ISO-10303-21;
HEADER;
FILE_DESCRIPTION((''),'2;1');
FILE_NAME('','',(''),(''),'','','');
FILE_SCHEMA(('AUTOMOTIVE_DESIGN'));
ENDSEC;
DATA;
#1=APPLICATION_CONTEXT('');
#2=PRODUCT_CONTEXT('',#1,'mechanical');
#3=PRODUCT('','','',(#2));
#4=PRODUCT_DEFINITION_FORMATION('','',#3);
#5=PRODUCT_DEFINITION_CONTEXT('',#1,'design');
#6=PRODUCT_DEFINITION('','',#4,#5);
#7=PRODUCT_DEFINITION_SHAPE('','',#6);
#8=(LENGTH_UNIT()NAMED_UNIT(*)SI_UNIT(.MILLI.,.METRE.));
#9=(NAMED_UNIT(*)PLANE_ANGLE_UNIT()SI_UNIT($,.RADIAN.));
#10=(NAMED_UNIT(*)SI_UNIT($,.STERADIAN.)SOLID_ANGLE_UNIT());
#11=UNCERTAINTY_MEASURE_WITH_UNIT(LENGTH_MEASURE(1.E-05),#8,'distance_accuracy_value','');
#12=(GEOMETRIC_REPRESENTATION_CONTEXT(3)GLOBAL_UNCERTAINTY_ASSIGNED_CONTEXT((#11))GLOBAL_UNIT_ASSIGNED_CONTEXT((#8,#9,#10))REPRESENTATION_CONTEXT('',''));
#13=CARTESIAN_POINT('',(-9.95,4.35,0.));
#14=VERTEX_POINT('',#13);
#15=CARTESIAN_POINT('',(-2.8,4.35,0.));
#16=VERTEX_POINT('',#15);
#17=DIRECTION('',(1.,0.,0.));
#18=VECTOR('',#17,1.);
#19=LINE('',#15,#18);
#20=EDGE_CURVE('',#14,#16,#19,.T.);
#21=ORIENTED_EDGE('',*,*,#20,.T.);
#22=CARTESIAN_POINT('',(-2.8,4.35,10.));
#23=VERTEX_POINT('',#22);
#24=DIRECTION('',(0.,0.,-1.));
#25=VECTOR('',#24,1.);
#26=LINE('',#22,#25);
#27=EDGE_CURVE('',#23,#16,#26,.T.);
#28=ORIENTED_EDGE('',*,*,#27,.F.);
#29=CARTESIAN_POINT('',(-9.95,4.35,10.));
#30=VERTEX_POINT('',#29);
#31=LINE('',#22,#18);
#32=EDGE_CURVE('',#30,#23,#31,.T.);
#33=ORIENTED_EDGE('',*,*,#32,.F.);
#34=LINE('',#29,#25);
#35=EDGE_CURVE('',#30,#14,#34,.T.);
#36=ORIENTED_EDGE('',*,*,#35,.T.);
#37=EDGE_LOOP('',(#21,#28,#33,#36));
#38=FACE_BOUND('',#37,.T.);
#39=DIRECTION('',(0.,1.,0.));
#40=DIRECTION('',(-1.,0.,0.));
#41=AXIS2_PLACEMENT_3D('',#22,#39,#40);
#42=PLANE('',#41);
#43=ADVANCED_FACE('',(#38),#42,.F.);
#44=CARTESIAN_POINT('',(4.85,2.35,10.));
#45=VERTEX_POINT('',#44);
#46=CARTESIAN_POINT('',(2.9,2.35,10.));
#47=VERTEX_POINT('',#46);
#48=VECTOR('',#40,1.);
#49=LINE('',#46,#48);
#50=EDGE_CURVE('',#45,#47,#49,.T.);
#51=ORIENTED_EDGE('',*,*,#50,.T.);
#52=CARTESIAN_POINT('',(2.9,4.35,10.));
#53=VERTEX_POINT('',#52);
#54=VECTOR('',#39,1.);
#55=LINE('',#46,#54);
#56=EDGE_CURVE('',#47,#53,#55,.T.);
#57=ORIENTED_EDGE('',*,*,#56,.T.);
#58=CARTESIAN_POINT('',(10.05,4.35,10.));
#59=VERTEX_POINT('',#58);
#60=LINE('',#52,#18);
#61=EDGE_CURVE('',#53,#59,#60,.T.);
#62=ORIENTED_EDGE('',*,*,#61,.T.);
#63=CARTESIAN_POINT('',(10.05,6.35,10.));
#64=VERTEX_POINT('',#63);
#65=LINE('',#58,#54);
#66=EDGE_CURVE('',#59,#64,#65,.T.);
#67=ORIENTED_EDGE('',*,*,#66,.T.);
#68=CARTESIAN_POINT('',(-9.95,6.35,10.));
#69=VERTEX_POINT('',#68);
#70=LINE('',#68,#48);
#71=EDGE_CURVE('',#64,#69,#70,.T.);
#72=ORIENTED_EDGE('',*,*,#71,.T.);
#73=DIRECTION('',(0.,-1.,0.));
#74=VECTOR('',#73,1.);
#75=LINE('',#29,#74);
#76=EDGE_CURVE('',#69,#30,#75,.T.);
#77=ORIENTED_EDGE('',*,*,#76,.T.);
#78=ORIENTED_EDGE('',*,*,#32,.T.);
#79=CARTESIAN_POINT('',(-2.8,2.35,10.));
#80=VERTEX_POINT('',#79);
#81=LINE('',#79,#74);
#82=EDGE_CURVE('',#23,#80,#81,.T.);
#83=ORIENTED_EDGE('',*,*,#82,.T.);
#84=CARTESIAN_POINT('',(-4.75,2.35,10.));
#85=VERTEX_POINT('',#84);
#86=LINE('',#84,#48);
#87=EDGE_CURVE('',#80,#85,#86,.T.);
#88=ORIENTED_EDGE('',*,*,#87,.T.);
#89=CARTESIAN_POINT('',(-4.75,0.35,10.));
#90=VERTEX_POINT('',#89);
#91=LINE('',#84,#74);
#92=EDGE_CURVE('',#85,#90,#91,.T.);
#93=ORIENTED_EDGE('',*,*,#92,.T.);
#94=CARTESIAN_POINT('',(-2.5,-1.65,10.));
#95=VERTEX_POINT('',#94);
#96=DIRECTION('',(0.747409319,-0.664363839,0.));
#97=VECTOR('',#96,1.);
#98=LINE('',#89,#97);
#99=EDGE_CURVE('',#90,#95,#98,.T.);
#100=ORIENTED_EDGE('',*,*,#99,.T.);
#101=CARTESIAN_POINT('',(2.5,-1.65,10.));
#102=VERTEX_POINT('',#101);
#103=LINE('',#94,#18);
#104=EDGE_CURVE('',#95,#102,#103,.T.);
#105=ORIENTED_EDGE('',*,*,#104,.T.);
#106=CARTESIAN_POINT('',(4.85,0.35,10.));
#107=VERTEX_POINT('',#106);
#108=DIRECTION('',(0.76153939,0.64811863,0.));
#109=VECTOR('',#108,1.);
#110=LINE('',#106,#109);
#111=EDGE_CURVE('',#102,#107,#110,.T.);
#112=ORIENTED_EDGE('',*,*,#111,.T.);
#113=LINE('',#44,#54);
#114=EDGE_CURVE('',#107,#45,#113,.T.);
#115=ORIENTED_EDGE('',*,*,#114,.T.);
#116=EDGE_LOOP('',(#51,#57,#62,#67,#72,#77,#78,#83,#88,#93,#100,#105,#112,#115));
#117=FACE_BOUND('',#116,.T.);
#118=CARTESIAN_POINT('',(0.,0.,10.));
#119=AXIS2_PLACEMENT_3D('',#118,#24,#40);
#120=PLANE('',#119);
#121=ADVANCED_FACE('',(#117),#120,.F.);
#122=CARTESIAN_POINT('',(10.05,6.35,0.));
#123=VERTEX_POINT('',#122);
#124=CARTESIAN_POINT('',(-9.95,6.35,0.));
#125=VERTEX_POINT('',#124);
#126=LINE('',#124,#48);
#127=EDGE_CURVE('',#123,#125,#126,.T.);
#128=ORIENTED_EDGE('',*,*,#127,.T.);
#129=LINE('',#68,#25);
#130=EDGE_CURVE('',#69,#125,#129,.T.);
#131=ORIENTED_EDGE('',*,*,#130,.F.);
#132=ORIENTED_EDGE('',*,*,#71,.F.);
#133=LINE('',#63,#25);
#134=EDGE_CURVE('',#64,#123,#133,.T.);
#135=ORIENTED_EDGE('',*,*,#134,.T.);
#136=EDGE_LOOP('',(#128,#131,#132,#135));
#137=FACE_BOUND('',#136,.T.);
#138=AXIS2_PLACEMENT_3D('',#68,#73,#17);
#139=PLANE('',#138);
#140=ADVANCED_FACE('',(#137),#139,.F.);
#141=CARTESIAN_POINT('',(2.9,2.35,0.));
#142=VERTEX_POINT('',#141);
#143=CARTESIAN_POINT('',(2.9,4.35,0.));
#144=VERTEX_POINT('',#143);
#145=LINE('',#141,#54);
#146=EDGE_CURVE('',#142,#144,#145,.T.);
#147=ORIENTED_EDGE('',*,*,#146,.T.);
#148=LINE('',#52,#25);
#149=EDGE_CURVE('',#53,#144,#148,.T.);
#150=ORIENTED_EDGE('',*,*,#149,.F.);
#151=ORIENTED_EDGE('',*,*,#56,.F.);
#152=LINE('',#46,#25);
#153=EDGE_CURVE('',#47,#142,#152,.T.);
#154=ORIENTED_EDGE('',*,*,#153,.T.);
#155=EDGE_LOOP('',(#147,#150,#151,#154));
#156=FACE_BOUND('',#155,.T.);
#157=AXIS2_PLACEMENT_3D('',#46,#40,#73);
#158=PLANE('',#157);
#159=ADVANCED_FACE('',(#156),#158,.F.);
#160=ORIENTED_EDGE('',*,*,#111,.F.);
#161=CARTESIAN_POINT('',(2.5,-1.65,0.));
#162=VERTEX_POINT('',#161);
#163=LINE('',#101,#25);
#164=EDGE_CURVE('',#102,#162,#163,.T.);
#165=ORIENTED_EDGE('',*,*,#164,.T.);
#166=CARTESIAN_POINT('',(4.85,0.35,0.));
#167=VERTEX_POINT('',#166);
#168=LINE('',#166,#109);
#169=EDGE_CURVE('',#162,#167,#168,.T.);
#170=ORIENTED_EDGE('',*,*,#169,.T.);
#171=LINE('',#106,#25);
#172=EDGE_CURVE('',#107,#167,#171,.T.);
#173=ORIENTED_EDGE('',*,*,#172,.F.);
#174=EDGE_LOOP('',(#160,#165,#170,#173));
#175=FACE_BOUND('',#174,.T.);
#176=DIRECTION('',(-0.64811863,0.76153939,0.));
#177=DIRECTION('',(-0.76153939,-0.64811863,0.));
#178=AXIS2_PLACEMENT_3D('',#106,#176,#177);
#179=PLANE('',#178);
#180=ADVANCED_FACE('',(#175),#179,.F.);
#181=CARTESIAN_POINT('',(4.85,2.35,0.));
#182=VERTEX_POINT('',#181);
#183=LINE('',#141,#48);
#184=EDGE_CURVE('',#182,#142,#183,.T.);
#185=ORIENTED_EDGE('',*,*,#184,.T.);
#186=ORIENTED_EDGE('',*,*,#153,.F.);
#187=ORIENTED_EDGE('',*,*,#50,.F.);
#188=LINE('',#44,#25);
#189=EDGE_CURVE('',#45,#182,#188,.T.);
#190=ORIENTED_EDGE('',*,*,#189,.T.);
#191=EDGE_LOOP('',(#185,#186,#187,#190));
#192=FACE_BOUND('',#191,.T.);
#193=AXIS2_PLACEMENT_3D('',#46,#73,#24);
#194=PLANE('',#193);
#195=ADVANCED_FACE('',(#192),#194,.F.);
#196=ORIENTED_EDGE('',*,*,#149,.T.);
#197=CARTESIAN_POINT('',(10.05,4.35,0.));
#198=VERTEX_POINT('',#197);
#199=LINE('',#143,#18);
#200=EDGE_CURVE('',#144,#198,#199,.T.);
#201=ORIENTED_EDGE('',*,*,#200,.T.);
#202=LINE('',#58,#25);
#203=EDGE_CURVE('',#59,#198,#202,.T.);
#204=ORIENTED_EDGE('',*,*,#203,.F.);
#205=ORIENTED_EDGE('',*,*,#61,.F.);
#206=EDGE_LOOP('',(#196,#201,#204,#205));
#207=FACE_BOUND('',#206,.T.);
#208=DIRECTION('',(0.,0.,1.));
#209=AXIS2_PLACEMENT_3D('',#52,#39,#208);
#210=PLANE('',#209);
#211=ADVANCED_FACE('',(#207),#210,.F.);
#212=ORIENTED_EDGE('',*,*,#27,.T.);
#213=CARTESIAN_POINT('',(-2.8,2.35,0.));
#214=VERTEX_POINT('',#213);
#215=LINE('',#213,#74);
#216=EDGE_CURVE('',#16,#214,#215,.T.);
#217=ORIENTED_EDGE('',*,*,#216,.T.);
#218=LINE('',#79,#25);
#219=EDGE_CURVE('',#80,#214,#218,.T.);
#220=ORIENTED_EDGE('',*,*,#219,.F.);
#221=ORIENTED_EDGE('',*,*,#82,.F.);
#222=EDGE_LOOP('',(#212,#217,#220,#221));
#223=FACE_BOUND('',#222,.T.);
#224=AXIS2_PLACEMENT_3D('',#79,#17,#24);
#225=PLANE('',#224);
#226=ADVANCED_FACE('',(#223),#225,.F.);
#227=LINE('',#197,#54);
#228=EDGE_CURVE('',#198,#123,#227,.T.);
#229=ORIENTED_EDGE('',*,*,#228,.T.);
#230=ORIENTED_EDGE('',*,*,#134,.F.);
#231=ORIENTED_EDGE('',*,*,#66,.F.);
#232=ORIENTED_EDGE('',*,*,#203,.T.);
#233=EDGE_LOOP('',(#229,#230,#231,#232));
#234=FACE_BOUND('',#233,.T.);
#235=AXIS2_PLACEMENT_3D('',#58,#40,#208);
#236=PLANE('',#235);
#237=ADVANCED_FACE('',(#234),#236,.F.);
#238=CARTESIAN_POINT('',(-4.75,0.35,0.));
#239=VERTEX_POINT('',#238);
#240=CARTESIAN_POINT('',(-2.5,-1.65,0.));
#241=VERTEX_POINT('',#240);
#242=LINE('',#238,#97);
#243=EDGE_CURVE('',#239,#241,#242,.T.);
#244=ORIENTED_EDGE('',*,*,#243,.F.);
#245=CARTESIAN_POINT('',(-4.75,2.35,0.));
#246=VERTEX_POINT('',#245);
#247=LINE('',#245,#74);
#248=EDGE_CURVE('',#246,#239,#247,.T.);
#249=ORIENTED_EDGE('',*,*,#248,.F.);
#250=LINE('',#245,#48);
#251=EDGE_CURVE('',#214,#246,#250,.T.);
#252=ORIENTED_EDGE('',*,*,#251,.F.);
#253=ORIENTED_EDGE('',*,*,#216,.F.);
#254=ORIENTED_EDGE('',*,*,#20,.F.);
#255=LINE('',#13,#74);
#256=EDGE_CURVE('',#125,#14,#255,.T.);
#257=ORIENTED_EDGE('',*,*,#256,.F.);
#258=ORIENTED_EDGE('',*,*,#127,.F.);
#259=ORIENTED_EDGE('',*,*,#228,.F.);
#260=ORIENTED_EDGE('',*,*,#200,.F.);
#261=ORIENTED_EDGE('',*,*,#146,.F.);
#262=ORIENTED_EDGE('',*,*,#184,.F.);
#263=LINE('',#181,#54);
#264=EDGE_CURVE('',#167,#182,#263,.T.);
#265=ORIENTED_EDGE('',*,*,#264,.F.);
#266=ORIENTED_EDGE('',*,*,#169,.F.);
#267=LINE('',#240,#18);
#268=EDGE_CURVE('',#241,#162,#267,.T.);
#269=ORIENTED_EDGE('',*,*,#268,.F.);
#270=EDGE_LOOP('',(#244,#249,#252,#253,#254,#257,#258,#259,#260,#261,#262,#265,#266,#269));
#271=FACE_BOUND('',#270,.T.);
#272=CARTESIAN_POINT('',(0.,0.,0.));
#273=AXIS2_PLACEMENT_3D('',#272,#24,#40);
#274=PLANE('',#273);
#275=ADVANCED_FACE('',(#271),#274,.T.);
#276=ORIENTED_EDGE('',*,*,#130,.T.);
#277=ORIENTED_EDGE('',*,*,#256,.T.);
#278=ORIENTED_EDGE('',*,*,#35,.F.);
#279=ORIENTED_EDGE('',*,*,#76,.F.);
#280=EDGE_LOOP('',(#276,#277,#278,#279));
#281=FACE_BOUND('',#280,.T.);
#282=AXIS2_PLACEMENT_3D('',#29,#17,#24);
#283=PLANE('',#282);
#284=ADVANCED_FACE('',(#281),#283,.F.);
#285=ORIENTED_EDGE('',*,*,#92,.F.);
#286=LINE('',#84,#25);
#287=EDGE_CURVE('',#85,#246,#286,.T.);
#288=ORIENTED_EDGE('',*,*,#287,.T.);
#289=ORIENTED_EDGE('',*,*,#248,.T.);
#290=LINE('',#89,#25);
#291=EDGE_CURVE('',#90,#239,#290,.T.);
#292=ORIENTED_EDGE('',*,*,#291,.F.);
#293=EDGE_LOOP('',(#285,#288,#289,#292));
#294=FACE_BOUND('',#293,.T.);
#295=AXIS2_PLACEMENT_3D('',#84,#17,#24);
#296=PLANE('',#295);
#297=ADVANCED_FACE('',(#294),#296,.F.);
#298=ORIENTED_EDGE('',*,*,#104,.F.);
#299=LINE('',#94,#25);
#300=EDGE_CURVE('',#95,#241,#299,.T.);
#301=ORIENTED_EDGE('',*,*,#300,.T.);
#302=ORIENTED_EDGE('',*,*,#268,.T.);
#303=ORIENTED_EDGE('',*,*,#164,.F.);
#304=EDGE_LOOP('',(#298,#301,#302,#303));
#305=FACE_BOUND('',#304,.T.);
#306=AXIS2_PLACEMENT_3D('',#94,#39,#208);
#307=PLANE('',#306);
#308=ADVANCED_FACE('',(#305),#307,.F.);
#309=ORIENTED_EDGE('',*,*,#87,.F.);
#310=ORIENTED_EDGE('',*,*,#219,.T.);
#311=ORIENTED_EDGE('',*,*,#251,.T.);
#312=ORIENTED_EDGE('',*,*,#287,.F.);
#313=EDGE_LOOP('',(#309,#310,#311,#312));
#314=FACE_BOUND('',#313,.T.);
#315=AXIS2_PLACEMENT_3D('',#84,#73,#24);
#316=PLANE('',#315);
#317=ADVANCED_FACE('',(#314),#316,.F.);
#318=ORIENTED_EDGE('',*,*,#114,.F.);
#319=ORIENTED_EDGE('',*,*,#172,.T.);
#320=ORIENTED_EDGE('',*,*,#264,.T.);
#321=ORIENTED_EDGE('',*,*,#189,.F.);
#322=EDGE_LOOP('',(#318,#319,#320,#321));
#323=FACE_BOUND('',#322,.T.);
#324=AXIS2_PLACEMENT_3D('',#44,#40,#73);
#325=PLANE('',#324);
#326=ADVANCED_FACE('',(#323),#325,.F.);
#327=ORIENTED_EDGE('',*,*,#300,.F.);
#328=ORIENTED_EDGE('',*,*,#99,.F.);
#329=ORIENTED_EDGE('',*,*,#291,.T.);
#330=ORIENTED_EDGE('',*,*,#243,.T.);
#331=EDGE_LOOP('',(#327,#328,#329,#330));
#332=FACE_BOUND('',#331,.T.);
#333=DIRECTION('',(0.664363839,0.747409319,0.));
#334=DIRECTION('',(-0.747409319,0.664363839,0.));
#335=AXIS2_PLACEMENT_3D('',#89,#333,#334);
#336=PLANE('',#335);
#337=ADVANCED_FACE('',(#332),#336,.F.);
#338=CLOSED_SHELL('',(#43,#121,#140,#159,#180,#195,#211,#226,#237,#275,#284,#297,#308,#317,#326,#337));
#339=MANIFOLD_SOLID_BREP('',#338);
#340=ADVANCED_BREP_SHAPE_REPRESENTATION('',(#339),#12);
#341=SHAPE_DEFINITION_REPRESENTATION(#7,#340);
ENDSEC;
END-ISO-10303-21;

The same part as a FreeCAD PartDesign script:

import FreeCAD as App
import Part
import Sketcher
from FreeCAD import Vector

doc = App.newDocument("Part")
params = doc.addObject("Spreadsheet::Sheet", "Params")
for row, (alias, value) in enumerate([
    ("sketch1_width", "5 mm"),
    ("sketch1_width2", "20 mm"),
    ("sketch1_height", "2 mm"),
    ("sketch1_width3", "1.95 mm"),
    ("sketch1_width4", "7.15 mm"),
    ("pad1_length", "10 mm"),
], start=1):
    params.set(f"A{row}", alias)
    params.set(f"B{row}", "=" + value)
    params.setAlias(f"B{row}", alias)

body = doc.addObject("PartDesign::Body", "Body")

sketch1 = doc.addObject("Sketcher::SketchObject", "Sketch")
body.addObject(sketch1)
sketch1.AttachmentSupport = (doc.XY_Plane, [""])
sketch1.MapMode = "FlatFace"
sketch1.addGeometry(Part.LineSegment(Vector(-2.5, -1.6, 0), Vector(2.5, -1.6, 0)), False)
sketch1.addGeometry(Part.LineSegment(Vector(2.5, -1.6, 0), Vector(4.8, 0.3, 0)), False)
sketch1.addGeometry(Part.LineSegment(Vector(4.8, 0.3, 0), Vector(4.8, 2.4, 0)), False)
sketch1.addGeometry(Part.LineSegment(Vector(4.8, 2.4, 0), Vector(2.9, 2.4, 0)), False)
sketch1.addGeometry(Part.LineSegment(Vector(2.9, 2.4, 0), Vector(2.9, 4.3, 0)), False)
sketch1.addGeometry(Part.LineSegment(Vector(2.9, 4.3, 0), Vector(10.1, 4.3, 0)), False)
sketch1.addGeometry(Part.LineSegment(Vector(10.1, 4.3, 0), Vector(10.1, 6.3, 0)), False)
sketch1.addGeometry(Part.LineSegment(Vector(10.1, 6.3, 0), Vector(-9.9, 6.3, 0)), False)
sketch1.addGeometry(Part.LineSegment(Vector(-9.9, 6.3, 0), Vector(-9.9, 4.3, 0)), False)
sketch1.addGeometry(Part.LineSegment(Vector(-9.9, 4.3, 0), Vector(-2.8, 4.3, 0)), False)
sketch1.addGeometry(Part.LineSegment(Vector(-2.8, 4.3, 0), Vector(-2.8, 2.4, 0)), False)
sketch1.addGeometry(Part.LineSegment(Vector(-2.8, 2.4, 0), Vector(-4.8, 2.4, 0)), False)
sketch1.addGeometry(Part.LineSegment(Vector(-4.8, 2.4, 0), Vector(-4.8, 0.3, 0)), False)
sketch1.addGeometry(Part.LineSegment(Vector(-4.8, 0.3, 0), Vector(-2.5, -1.6, 0)), False)
sketch1.addConstraint(Sketcher.Constraint("Coincident", 0, 2, 1, 1))
sketch1.addConstraint(Sketcher.Constraint("Coincident", 1, 2, 2, 1))
sketch1.addConstraint(Sketcher.Constraint("Coincident", 2, 2, 3, 1))
sketch1.addConstraint(Sketcher.Constraint("Coincident", 3, 2, 4, 1))
sketch1.addConstraint(Sketcher.Constraint("Coincident", 4, 2, 5, 1))
sketch1.addConstraint(Sketcher.Constraint("Coincident", 5, 2, 6, 1))
sketch1.addConstraint(Sketcher.Constraint("Coincident", 6, 2, 7, 1))
sketch1.addConstraint(Sketcher.Constraint("Coincident", 7, 2, 8, 1))
sketch1.addConstraint(Sketcher.Constraint("Coincident", 8, 2, 9, 1))
sketch1.addConstraint(Sketcher.Constraint("Coincident", 9, 2, 10, 1))
sketch1.addConstraint(Sketcher.Constraint("Coincident", 10, 2, 11, 1))
sketch1.addConstraint(Sketcher.Constraint("Coincident", 11, 2, 12, 1))
sketch1.addConstraint(Sketcher.Constraint("Coincident", 12, 2, 13, 1))
sketch1.addConstraint(Sketcher.Constraint("Coincident", 13, 2, 0, 1))
sketch1.addConstraint(Sketcher.Constraint("Horizontal", 0))
sketch1.addConstraint(Sketcher.Constraint("Vertical", 2))
sketch1.addConstraint(Sketcher.Constraint("Horizontal", 3))
sketch1.addConstraint(Sketcher.Constraint("Vertical", 4))
sketch1.addConstraint(Sketcher.Constraint("Horizontal", 5))
sketch1.addConstraint(Sketcher.Constraint("Vertical", 6))
sketch1.addConstraint(Sketcher.Constraint("Horizontal", 7))
sketch1.addConstraint(Sketcher.Constraint("Vertical", 8))
sketch1.addConstraint(Sketcher.Constraint("Horizontal", 9))
sketch1.addConstraint(Sketcher.Constraint("Vertical", 10))
sketch1.addConstraint(Sketcher.Constraint("Horizontal", 11))
sketch1.addConstraint(Sketcher.Constraint("Vertical", 12))
sketch1.addConstraint(Sketcher.Constraint("Horizontal", 5, 2, 8, 2))
sketch1.addConstraint(Sketcher.Constraint("Horizontal", 3, 2, 10, 2))
sketch1.addConstraint(Sketcher.Constraint("Horizontal", 1, 2, 12, 2))
sketch1.addConstraint(Sketcher.Constraint("Equal", 5, 9))
sketch1.addConstraint(Sketcher.Constraint("Equal", 3, 11))
sketch1.addConstraint(Sketcher.Constraint("Equal", 2, 4))
sketch1.addConstraint(Sketcher.Constraint("Equal", 4, 6))
sketch1.addConstraint(Sketcher.Constraint("DistanceX", 0, 1, 0, 2, 5.0))
sketch1.addConstraint(Sketcher.Constraint("DistanceX", 7, 2, 7, 1, 20.0))
sketch1.addConstraint(Sketcher.Constraint("DistanceY", 2, 1, 2, 2, 2.0))
sketch1.addConstraint(Sketcher.Constraint("DistanceY", 0, 2, 1, 2, 2.0))
sketch1.addConstraint(Sketcher.Constraint("DistanceX", 3, 2, 3, 1, 1.95))
sketch1.addConstraint(Sketcher.Constraint("DistanceX", 5, 1, 5, 2, 7.15))
sketch1.addConstraint(Sketcher.Constraint("DistanceX", -1, 1, 0, 2, 2.5))
sketch1.addConstraint(Sketcher.Constraint("DistanceX", -1, 1, 3, 2, 2.9))
sketch1.addConstraint(Sketcher.Constraint("DistanceY", 0, 2, -1, 1, 1.65))
sketch1.setExpression("Constraints[33]", "Params.sketch1_width")
sketch1.setExpression("Constraints[34]", "Params.sketch1_width2")
sketch1.setExpression("Constraints[35]", "Params.sketch1_height")
sketch1.setExpression("Constraints[37]", "Params.sketch1_width3")
sketch1.setExpression("Constraints[38]", "Params.sketch1_width4")
pad1 = doc.addObject("PartDesign::Pad", "Pad")
body.addObject(pad1)
pad1.Profile = sketch1
pad1.setExpression("Length", "Params.pad1_length")

doc.recompute()
